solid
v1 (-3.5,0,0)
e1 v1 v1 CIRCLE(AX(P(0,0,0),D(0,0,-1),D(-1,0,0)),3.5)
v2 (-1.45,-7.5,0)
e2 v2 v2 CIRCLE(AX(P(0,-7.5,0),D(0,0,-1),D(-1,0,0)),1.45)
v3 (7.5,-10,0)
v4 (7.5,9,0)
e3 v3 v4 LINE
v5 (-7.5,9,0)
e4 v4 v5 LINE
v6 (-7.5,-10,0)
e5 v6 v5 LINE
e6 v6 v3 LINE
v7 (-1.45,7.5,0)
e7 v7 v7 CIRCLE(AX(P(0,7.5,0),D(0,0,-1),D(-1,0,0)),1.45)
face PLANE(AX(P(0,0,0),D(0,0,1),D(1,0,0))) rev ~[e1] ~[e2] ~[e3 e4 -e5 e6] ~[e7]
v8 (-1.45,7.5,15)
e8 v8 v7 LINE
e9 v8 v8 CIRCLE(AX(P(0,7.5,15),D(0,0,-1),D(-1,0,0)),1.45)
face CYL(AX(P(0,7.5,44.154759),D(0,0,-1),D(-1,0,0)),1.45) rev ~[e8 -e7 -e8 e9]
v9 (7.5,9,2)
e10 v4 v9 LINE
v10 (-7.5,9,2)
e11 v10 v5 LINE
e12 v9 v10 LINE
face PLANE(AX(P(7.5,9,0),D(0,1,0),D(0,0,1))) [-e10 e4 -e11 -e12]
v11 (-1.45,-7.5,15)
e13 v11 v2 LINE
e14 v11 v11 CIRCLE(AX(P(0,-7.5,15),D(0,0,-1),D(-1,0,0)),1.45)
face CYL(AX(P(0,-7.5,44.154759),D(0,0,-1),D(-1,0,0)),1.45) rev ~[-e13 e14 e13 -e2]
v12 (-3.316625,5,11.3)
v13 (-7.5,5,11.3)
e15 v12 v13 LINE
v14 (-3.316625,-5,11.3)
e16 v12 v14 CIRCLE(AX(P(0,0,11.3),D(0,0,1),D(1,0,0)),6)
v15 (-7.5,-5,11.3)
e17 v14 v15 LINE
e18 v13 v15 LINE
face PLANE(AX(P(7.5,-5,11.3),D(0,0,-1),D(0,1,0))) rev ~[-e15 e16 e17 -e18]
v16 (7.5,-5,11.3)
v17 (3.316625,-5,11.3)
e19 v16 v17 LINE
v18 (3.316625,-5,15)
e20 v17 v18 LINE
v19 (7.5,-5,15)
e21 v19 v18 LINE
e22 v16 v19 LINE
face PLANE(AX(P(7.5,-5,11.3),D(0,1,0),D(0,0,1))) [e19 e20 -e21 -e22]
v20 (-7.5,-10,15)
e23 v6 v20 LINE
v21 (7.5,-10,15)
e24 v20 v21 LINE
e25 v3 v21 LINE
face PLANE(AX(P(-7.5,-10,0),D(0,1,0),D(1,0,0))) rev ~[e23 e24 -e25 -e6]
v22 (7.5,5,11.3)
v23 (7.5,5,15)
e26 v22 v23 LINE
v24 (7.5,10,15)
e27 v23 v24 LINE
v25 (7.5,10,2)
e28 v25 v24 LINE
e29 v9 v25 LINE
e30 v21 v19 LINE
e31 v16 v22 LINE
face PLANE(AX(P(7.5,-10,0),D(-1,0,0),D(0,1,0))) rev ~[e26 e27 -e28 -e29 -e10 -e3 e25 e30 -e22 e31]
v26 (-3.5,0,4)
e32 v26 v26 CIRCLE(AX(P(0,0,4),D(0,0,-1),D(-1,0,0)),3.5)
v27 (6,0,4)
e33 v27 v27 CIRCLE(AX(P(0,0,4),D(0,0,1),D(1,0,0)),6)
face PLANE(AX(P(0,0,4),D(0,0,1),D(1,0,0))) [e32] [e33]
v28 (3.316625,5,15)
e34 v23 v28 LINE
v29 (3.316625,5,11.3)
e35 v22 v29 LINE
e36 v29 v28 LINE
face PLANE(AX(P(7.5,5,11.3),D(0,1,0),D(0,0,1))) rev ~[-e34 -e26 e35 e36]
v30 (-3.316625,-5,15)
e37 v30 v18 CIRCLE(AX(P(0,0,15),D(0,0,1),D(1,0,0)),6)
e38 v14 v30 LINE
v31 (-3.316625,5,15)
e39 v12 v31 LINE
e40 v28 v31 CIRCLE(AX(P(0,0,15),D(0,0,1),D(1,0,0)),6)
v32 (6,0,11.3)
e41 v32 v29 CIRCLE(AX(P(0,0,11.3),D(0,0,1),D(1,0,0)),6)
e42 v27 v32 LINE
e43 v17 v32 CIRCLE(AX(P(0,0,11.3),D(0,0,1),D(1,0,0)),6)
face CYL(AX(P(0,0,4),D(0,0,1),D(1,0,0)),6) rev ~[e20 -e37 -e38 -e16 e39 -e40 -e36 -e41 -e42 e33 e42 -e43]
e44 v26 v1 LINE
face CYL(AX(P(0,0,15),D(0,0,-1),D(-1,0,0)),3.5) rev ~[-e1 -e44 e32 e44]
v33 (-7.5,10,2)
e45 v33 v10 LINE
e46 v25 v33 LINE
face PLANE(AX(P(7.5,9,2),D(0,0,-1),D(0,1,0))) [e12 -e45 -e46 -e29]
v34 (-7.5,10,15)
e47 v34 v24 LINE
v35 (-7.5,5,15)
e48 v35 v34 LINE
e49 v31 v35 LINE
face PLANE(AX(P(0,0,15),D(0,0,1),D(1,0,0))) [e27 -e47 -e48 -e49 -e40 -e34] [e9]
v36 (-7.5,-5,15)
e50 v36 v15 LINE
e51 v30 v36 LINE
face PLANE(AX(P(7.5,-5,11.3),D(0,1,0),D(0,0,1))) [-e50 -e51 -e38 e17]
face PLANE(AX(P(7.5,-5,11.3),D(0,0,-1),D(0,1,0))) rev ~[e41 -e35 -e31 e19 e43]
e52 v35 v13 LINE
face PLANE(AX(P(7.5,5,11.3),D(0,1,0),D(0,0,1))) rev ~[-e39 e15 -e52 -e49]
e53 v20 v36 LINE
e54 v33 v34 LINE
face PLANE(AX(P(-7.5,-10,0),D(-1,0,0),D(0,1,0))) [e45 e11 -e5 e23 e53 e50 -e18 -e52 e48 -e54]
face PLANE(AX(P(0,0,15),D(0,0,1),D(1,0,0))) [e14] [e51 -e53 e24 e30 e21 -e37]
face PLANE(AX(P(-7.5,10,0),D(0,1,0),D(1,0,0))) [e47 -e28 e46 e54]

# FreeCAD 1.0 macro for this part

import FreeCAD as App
import Part
import Sketcher


def add_polygon(sketch, points):
    """Adds a closed chain of lines whose ends are joined by coincident constraints."""
    first, n = sketch.GeometryCount, len(points)
    for a, b in zip(points, points[1:] + points[:1]):
        sketch.addGeometry(Part.LineSegment(App.Vector(*a, 0), App.Vector(*b, 0)), False)
    for i in range(n):
        sketch.addConstraint(Sketcher.Constraint("Coincident", first + i, 2, first + (i + 1) % n, 1))

doc = App.newDocument("Part")
params = doc.addObject("Spreadsheet::Sheet", "Params")
for row, (alias, value) in enumerate([
    ("sketch1_width", "15 mm"),
    ("sketch1_height", "20 mm"),
    ("pad1_length", "15 mm"),
    ("sketch2_diameter", "7 mm"),
    ("hole_diameter", "7 mm"),
    ("hole_cbore_diameter", "12 mm"),
    ("hole_cbore_depth", "11 mm"),
    ("sketch3_diameter", "2.9 mm"),
    ("hole2_diameter", "2.9 mm"),
    ("sketch4_width", "10 mm"),
    ("sketch4_height", "3.7 mm"),
    ("sketch5_width", "1 mm"),
    ("sketch5_height", "2 mm"),
], start=1):
    params.set(f"A{row}", alias)
    params.set(f"B{row}", "=" + value)
    params.setAlias(f"B{row}", alias)

body = doc.addObject("PartDesign::Body", "Body")

# Sketch on XY plane
sketch1 = body.newObject("Sketcher::SketchObject", "Sketch")
sketch1.AttachmentSupport = (doc.getObject("XY_Plane"), [""])
sketch1.MapMode = "FlatFace"
add_polygon(sketch1, [(-8, 10), (-8, -10), (8, -10), (8, 10)])  # lines 0-3
sketch1.addConstraint([
    Sketcher.Constraint("Vertical", 0),
    Sketcher.Constraint("Horizontal", 1),
    Sketcher.Constraint("Vertical", 2),
    Sketcher.Constraint("Horizontal", 3),
    Sketcher.Constraint("Symmetric", 0, 2, 2, 2, -1, 1),
    Sketcher.Constraint("DistanceX", 1, 1, 1, 2, 15.0),
    Sketcher.Constraint("DistanceY", 0, 2, 0, 1, 20.0),
])
sketch1.setExpression("Constraints[9]", "Params.sketch1_width")
sketch1.setExpression("Constraints[10]", "Params.sketch1_height")
pad1 = body.newObject("PartDesign::Pad", "Pad")
pad1.Profile = sketch1
pad1.setExpression("Length", "Params.pad1_length")

# Sketch on XY plane
sketch2 = body.newObject("Sketcher::SketchObject", "Sketch001")
sketch2.AttachmentSupport = (doc.getObject("XY_Plane"), [""])
sketch2.MapMode = "FlatFace"
sketch2.AttachmentOffset = App.Placement(App.Vector(0, 0, 15), App.Rotation())
sketch2.addGeometry(Part.Circle(App.Vector(0, 0, 0), App.Vector(0, 0, 1), 3.5), False)
sketch2.addConstraint([
    Sketcher.Constraint("Coincident", 0, 3, -1, 1),
    Sketcher.Constraint("Diameter", 0, 7.0),
])
sketch2.setExpression("Constraints[1]", "Params.sketch2_diameter")
doc.recompute()
hole = body.newObject("PartDesign::Hole", "Hole")
hole.Profile = sketch2
hole.ThreadType = "None"
hole.setExpression("Diameter", "Params.hole_diameter")
hole.DepthType = "ThroughAll"
hole.HoleCutType = "Counterbore"
hole.setExpression("HoleCutDiameter", "Params.hole_cbore_diameter")
hole.setExpression("HoleCutDepth", "Params.hole_cbore_depth")

# Sketch on XY plane
sketch3 = body.newObject("Sketcher::SketchObject", "Sketch002")
sketch3.AttachmentSupport = (doc.getObject("XY_Plane"), [""])
sketch3.MapMode = "FlatFace"
sketch3.AttachmentOffset = App.Placement(App.Vector(0, 0, 15), App.Rotation())
sketch3.addGeometry([
    Part.Circle(App.Vector(0, -7.5, 0), App.Vector(0, 0, 1), 1.4),
    Part.Circle(App.Vector(0, 7.5, 0), App.Vector(0, 0, 1), 1.4),
], False)
sketch3.addConstraint([
    Sketcher.Constraint("Equal", 0, 1),
    Sketcher.Constraint("Symmetric", 0, 3, 1, 3, -1, 1),
    Sketcher.Constraint("PointOnObject", 0, 3, -2),
    Sketcher.Constraint("Diameter", 0, 2.9),
    Sketcher.Constraint("DistanceY", 0, 3, 1, 3, 15.0),
])
sketch3.setExpression("Constraints[3]", "Params.sketch3_diameter")
doc.recompute()
hole2 = body.newObject("PartDesign::Hole", "Hole001")
hole2.Profile = sketch3
hole2.ThreadType = "None"
hole2.setExpression("Diameter", "Params.hole2_diameter")
hole2.DepthType = "ThroughAll"

# Sketch on YZ plane
sketch4 = body.newObject("Sketcher::SketchObject", "Sketch003")
sketch4.AttachmentSupport = (doc.getObject("YZ_Plane"), [""])
sketch4.MapMode = "FlatFace"
sketch4.AttachmentOffset = App.Placement(App.Vector(0, 0, 7.5), App.Rotation())
add_polygon(sketch4, [(-5, 15), (-5, 11.3), (5, 11.3), (5, 15)])  # lines 0-3
sketch4.addConstraint([
    Sketcher.Constraint("Vertical", 0),
    Sketcher.Constraint("Horizontal", 1),
    Sketcher.Constraint("Vertical", 2),
    Sketcher.Constraint("Horizontal", 3),
    Sketcher.Constraint("DistanceX", 1, 1, 1, 2, 10.0),
    Sketcher.Constraint("DistanceY", 0, 2, 0, 1, 3.7),
    Sketcher.Constraint("DistanceX", 0, 2, -1, 1, 5.0),
    Sketcher.Constraint("DistanceY", -1, 1, 2, 2, 15.0),
])
sketch4.setExpression("Constraints[8]", "Params.sketch4_width")
sketch4.setExpression("Constraints[9]", "Params.sketch4_height")
pocket1 = body.newObject("PartDesign::Pocket", "Pocket")
pocket1.Profile = sketch4
pocket1.Type = "ThroughAll"

# Sketch on YZ plane
sketch5 = body.newObject("Sketcher::SketchObject", "Sketch004")
sketch5.AttachmentSupport = (doc.getObject("YZ_Plane"), [""])
sketch5.MapMode = "FlatFace"
sketch5.AttachmentOffset = App.Placement(App.Vector(0, 0, 7.5), App.Rotation())
add_polygon(sketch5, [(9, 2), (9, 0), (10, 0), (10, 2)])  # lines 0-3
sketch5.addConstraint([
    Sketcher.Constraint("Vertical", 0),
    Sketcher.Constraint("Horizontal", 1),
    Sketcher.Constraint("Vertical", 2),
    Sketcher.Constraint("Horizontal", 3),
    Sketcher.Constraint("PointOnObject", 0, 2, -1),
    Sketcher.Constraint("DistanceX", 1, 1, 1, 2, 1.0),
    Sketcher.Constraint("DistanceY", 0, 2, 0, 1, 2.0),
    Sketcher.Constraint("DistanceX", -1, 1, 0, 2, 9.0),
])
sketch5.setExpression("Constraints[9]", "Params.sketch5_width")
sketch5.setExpression("Constraints[10]", "Params.sketch5_height")
pocket2 = body.newObject("PartDesign::Pocket", "Pocket001")
pocket2.Profile = sketch5
pocket2.Type = "ThroughAll"

doc.recompute()
